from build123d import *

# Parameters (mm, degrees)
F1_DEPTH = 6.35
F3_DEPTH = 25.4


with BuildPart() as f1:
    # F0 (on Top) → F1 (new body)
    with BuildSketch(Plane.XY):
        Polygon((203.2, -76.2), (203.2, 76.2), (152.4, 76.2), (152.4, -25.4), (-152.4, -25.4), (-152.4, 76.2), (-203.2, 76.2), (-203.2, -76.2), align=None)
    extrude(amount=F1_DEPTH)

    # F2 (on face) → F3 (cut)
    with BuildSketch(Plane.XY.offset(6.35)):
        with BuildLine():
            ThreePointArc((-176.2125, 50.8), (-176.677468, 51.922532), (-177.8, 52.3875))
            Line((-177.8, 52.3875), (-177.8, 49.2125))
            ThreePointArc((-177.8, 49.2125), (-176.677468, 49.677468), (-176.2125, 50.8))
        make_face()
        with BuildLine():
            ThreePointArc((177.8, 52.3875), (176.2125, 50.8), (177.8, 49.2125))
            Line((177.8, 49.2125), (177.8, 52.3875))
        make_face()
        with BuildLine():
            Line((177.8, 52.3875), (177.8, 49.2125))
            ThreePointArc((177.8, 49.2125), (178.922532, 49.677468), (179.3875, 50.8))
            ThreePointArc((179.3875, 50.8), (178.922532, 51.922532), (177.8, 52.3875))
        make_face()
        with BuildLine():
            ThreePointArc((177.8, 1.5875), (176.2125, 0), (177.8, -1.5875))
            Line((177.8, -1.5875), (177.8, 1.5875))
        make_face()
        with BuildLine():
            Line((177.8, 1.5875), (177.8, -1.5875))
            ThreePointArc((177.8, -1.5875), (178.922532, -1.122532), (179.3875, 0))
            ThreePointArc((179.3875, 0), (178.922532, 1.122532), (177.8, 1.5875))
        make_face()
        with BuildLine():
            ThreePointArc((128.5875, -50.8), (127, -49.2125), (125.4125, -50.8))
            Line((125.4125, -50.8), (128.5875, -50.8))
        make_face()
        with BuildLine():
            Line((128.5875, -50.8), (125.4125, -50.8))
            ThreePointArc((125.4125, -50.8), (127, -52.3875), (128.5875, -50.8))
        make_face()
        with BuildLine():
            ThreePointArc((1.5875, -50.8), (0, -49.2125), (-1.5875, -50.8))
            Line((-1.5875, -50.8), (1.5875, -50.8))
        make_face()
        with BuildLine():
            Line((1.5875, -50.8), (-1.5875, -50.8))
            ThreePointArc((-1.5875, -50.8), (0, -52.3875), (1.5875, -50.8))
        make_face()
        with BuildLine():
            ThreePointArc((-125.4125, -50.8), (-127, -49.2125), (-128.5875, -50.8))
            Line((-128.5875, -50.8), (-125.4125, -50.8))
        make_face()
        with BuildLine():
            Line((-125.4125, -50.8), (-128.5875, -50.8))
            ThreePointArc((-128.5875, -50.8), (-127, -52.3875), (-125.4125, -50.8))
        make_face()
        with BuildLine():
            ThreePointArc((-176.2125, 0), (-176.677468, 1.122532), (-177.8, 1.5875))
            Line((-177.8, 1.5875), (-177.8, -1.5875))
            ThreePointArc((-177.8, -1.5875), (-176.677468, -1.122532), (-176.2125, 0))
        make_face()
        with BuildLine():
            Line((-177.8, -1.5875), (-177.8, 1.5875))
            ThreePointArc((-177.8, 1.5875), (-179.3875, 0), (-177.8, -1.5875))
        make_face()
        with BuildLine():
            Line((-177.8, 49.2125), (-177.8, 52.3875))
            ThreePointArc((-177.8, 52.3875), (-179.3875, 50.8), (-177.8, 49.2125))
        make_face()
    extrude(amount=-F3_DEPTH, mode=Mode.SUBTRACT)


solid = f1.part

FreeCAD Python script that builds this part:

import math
import FreeCAD as App
import Part
import Sketcher
from FreeCAD import Vector
Q = App.Units.Quantity


def add_polygon(sketch, points):
    """Adds a closed chain of lines whose ends are joined by coincident constraints."""
    first, n = sketch.GeometryCount, len(points)
    for a, b in zip(points, points[1:] + points[:1]):
        sketch.addGeometry(Part.LineSegment(App.Vector(*a, 0), App.Vector(*b, 0)), False)
    for i in range(n):
        sketch.addConstraint(Sketcher.Constraint("Coincident", first + i, 2, first + (i + 1) % n, 1))

doc = App.newDocument("Part")
body = doc.addObject("PartDesign::Body", "Body")

sketch1 = body.newObject("Sketcher::SketchObject", "Sketch")
sketch1.AttachmentSupport = (doc.getObject("XY_Plane"), [""])
sketch1.MapMode = "FlatFace"
add_polygon(sketch1, [(203, -76), (203, 76), (152, 76), (152, -25), (-152, -25), (-152, 76), (-203, 76), (-203, -76)])
sketch1.addConstraint([
    Sketcher.Constraint("Vertical", 0),
    Sketcher.Constraint("Horizontal", 1),
    Sketcher.Constraint("Vertical", 2),
    Sketcher.Constraint("Horizontal", 3),
    Sketcher.Constraint("Vertical", 4),
    Sketcher.Constraint("Horizontal", 5),
    Sketcher.Constraint("Vertical", 6),
    Sketcher.Constraint("Horizontal", 7),
    Sketcher.Constraint("Symmetric", 0, 2, 6, 2, -1, 1),
    Sketcher.Constraint("Symmetric", 1, 2, 4, 2, -2),
    Sketcher.Constraint("DistanceX", 1, 2, 1, 1, Q("2 in")),
    Sketcher.Constraint("DistanceX", 3, 2, 3, 1, Q("12 in")),
    Sketcher.Constraint("DistanceY", 0, 1, 0, 2, Q("6 in")),
    Sketcher.Constraint("DistanceY", 2, 2, 2, 1, Q("4 in")),
])
pad1 = body.newObject("PartDesign::Pad", "Pad")
pad1.Profile = sketch1
pad1.Length = Q("0.25 in")

sketch2 = body.newObject("Sketcher::SketchObject", "Sketch001")
sketch2.AttachmentSupport = (doc.getObject("XY_Plane"), [""])
sketch2.MapMode = "FlatFace"
sketch2.AttachmentOffset = App.Placement(Vector(0, 0, 0.25 * 25.4), App.Rotation())
sketch2.addGeometry([
    Part.ArcOfCircle(Part.Circle(Vector(-177.8, 50.8, 0), Vector(0, 0, 1), 1.6), math.radians(0), math.radians(90)),
    Part.ArcOfCircle(Part.Circle(Vector(-177.8, 50.8, 0), Vector(0, 0, 1), 1.6), math.radians(90), math.radians(270)),
    Part.ArcOfCircle(Part.Circle(Vector(-177.8, 50.8, 0), Vector(0, 0, 1), 1.6), math.radians(-90), math.radians(0)),
    Part.ArcOfCircle(Part.Circle(Vector(177.8, 50.8, 0), Vector(0, 0, 1), 1.6), math.radians(90), math.radians(270)),
    Part.ArcOfCircle(Part.Circle(Vector(177.8, 50.8, 0), Vector(0, 0, 1), 1.6), math.radians(-90), math.radians(0)),
    Part.ArcOfCircle(Part.Circle(Vector(177.8, 50.8, 0), Vector(0, 0, 1), 1.6), math.radians(0), math.radians(90)),
    Part.ArcOfCircle(Part.Circle(Vector(177.8, 0, 0), Vector(0, 0, 1), 1.6), math.radians(90), math.radians(270)),
    Part.ArcOfCircle(Part.Circle(Vector(177.8, 0, 0), Vector(0, 0, 1), 1.6), math.radians(-90), math.radians(0)),
    Part.ArcOfCircle(Part.Circle(Vector(177.8, 0, 0), Vector(0, 0, 1), 1.6), math.radians(0), math.radians(90)),
    Part.Circle(Vector(127, -50.8, 0), Vector(0, 0, 1), 1.6),
    Part.Circle(Vector(0, -50.8, 0), Vector(0, 0, 1), 1.6),
    Part.Circle(Vector(-127, -50.8, 0), Vector(0, 0, 1), 1.6),
    Part.ArcOfCircle(Part.Circle(Vector(-177.8, 0, 0), Vector(0, 0, 1), 1.6), math.radians(0), math.radians(90)),
    Part.ArcOfCircle(Part.Circle(Vector(-177.8, 0, 0), Vector(0, 0, 1), 1.6), math.radians(90), math.radians(270)),
    Part.ArcOfCircle(Part.Circle(Vector(-177.8, 0, 0), Vector(0, 0, 1), 1.6), math.radians(-90), math.radians(0)),
], False)
sketch2.addConstraint([
    Sketcher.Constraint("Tangent", 0, 2, 1, 1),
    Sketcher.Constraint("Tangent", 1, 2, 2, 1),
    Sketcher.Constraint("Tangent", 2, 2, 0, 1),
    Sketcher.Constraint("Tangent", 3, 2, 4, 1),
    Sketcher.Constraint("Tangent", 4, 2, 5, 1),
    Sketcher.Constraint("Tangent", 5, 2, 3, 1),
    Sketcher.Constraint("Tangent", 6, 2, 7, 1),
    Sketcher.Constraint("Tangent", 7, 2, 8, 1),
    Sketcher.Constraint("Tangent", 8, 2, 6, 1),
    Sketcher.Constraint("Tangent", 12, 2, 13, 1),
    Sketcher.Constraint("Tangent", 13, 2, 14, 1),
    Sketcher.Constraint("Tangent", 14, 2, 12, 1),
    Sketcher.Constraint("Equal", 2, 3),
    Sketcher.Constraint("Equal", 5, 6),
    Sketcher.Constraint("Equal", 8, 9),
    Sketcher.Constraint("Equal", 9, 10),
    Sketcher.Constraint("Equal", 10, 11),
    Sketcher.Constraint("Equal", 11, 12),
    Sketcher.Constraint("Symmetric", 6, 3, 12, 3, -1, 1),
    Sketcher.Constraint("Symmetric", 0, 3, 3, 3, -2),
    Sketcher.Constraint("Symmetric", 9, 3, 11, 3, -2),
    Sketcher.Constraint("Symmetric", 8, 2, 12, 2, -2),
    Sketcher.Constraint("PointOnObject", 10, 3, -2),
    Sketcher.Constraint("PointOnObject", 7, 2, -1),
    Sketcher.Constraint("PointOnObject", 14, 2, -1),
    Sketcher.Constraint("Horizontal", 9, 3, 10, 3),
    Sketcher.Constraint("Horizontal", 5, 3, 2, 2),
    Sketcher.Constraint("Horizontal", 2, 2, 4, 2),
    Sketcher.Constraint("Vertical", 5, 3, 6, 3),
    Sketcher.Constraint("Vertical", 14, 3, 0, 2),
    Sketcher.Constraint("Vertical", 0, 2, 1, 2),
    Sketcher.Constraint("Vertical", 8, 3, 3, 2),
    Sketcher.Constraint("Vertical", 3, 2, 5, 2),
    Sketcher.Constraint("Vertical", 5, 2, 6, 2),
    Sketcher.Constraint("Vertical", 6, 2, 8, 2),
    Sketcher.Constraint("Vertical", 12, 2, 13, 2),
    Sketcher.Constraint("Diameter", 9, Q("0.125 in")),
    Sketcher.Constraint("DistanceX", 0, 3, -1, 1, Q("7 in")),
    Sketcher.Constraint("DistanceY", -1, 1, 0, 3, Q("2 in")),
    Sketcher.Constraint("DistanceX", -1, 1, 9, 3, Q("5 in")),
    Sketcher.Constraint("DistanceY", 9, 3, -1, 1, Q("2 in")),
])
pocket1 = body.newObject("PartDesign::Pocket", "Pocket")
pocket1.Profile = sketch2
pocket1.Length = Q("1 in")

doc.recompute()
